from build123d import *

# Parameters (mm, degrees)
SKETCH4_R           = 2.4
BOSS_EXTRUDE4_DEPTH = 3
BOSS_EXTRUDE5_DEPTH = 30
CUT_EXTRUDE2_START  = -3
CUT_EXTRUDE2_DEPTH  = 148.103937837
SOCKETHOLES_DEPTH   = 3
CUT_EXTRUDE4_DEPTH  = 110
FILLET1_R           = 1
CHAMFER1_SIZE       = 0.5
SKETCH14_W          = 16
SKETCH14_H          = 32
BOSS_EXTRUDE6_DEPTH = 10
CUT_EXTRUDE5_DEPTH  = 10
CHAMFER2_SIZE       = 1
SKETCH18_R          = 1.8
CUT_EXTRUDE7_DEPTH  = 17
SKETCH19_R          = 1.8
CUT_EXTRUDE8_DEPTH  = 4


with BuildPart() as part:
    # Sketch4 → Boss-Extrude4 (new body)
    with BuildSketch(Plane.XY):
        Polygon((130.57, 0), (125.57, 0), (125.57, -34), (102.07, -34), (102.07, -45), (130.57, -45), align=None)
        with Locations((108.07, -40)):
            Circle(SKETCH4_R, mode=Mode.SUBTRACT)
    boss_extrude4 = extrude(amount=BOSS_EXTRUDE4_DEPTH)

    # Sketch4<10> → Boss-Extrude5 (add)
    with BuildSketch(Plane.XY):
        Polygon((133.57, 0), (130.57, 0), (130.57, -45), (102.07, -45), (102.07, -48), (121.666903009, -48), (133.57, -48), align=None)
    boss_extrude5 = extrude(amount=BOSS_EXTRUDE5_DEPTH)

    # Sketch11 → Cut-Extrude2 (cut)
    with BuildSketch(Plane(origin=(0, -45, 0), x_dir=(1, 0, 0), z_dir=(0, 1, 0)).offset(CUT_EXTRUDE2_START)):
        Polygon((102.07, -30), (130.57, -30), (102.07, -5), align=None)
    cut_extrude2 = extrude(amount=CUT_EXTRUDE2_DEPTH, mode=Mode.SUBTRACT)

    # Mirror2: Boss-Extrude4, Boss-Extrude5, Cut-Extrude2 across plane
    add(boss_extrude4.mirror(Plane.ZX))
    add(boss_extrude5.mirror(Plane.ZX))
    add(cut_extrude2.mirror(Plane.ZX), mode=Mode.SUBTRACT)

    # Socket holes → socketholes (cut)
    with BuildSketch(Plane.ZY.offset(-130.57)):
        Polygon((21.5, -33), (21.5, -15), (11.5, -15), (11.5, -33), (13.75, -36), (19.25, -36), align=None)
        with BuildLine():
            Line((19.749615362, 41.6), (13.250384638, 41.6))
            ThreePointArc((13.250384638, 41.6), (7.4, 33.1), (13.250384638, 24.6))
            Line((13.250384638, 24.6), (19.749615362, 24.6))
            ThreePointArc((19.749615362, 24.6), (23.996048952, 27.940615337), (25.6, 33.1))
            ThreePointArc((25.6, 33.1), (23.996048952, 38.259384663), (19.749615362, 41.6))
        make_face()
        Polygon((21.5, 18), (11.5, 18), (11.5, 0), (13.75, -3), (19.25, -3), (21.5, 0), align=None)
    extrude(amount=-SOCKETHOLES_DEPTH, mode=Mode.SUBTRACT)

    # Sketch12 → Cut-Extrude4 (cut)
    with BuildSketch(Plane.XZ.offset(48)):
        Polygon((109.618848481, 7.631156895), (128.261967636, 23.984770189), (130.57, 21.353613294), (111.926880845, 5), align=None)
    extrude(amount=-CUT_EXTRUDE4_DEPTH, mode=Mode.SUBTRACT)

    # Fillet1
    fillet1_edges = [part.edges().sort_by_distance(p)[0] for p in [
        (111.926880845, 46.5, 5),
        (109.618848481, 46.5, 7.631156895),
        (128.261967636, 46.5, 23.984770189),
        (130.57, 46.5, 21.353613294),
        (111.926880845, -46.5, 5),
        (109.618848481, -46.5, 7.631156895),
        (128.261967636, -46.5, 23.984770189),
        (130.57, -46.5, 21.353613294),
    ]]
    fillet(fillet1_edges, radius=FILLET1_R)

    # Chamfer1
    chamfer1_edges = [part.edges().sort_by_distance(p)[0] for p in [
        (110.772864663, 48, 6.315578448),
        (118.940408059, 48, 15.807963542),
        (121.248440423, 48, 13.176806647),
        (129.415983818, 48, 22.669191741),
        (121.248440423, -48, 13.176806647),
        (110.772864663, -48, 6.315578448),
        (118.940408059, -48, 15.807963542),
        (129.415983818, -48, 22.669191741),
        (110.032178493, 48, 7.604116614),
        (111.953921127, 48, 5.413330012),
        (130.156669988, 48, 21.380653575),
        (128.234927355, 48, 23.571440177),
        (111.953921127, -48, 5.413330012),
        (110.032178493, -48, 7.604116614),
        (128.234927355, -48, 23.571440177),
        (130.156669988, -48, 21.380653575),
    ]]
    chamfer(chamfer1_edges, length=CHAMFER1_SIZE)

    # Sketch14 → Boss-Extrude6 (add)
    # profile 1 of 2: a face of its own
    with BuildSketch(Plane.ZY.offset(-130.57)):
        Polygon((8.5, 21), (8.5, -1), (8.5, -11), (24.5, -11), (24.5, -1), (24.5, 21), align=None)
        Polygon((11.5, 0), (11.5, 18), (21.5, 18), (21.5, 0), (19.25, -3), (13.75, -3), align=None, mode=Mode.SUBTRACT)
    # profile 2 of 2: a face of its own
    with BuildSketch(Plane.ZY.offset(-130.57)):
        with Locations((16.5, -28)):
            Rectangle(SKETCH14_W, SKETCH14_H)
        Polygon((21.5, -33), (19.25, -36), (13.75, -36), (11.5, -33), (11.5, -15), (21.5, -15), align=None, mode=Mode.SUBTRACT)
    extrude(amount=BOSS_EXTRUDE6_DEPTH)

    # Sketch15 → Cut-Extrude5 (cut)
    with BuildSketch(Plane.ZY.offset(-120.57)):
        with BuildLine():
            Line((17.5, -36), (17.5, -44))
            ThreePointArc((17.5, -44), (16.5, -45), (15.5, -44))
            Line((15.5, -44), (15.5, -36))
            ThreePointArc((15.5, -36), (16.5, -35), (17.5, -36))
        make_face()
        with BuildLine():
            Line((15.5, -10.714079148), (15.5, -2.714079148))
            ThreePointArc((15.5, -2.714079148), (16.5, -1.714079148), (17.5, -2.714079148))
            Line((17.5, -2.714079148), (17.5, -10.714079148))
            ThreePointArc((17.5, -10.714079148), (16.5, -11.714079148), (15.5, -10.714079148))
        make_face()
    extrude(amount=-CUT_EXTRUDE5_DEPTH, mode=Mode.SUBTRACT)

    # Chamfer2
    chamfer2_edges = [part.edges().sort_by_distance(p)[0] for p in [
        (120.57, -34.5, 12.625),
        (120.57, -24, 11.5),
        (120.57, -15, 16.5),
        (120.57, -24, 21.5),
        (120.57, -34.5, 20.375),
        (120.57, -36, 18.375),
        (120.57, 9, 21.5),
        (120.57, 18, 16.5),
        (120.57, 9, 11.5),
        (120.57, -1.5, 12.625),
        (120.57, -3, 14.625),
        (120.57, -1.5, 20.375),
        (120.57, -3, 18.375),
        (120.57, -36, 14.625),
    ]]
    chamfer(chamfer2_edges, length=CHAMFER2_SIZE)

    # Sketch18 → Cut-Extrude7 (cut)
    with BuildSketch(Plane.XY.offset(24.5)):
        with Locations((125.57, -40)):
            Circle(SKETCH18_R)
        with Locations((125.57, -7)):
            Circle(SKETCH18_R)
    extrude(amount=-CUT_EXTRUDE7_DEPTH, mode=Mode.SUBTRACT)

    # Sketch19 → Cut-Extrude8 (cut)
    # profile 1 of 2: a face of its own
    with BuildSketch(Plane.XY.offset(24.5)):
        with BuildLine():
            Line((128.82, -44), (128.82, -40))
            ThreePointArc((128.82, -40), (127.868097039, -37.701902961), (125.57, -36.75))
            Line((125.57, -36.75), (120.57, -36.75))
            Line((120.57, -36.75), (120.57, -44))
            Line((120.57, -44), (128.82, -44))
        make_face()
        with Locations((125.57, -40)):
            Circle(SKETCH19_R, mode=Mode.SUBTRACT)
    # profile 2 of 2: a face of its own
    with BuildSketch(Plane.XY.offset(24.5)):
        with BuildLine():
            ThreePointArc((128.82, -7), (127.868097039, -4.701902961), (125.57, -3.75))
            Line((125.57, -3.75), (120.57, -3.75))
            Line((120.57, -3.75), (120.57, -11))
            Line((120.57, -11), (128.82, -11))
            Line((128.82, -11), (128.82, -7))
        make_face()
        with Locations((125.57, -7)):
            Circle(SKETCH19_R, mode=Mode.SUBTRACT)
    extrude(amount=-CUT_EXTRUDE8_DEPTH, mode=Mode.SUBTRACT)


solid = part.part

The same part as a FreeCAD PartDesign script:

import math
import FreeCAD as App
import Part
import Sketcher
Q = App.Units.Quantity


def edges_at(feature, points):
    """Names of the edges that pass closest to the given points."""
    edges = feature.Shape.Edges
    near = lambda p: min(range(len(edges)), key=lambda i: edges[i].distToShape(Part.Vertex(*p))[0])
    return sorted({f"Edge{near(p) + 1}" for p in points})


def add_polygon(sketch, points):
    """Adds a closed chain of lines whose ends are joined by coincident constraints."""
    first, n = sketch.GeometryCount, len(points)
    for a, b in zip(points, points[1:] + points[:1]):
        sketch.addGeometry(Part.LineSegment(App.Vector(*a, 0), App.Vector(*b, 0)), False)
    for i in range(n):
        sketch.addConstraint(Sketcher.Constraint("Coincident", first + i, 2, first + (i + 1) % n, 1))

doc = App.newDocument("Part")
body = doc.addObject("PartDesign::Body", "Body")

sketch1 = body.newObject("Sketcher::SketchObject", "Sketch")
sketch1.AttachmentSupport = (doc.getObject("XY_Plane"), [""])
sketch1.MapMode = "FlatFace"
add_polygon(sketch1, [(130.6, 0), (125.6, 0), (125.6, -34), (102.1, -34), (102.1, -45), (130.6, -45)])
sketch1.addGeometry(Part.Circle(App.Vector(108.1, -40, 0), App.Vector(0, 0, 1), 2.4), False)
sketch1.addConstraint([
    Sketcher.Constraint("Horizontal", 0),
    Sketcher.Constraint("Vertical", 1),
    Sketcher.Constraint("Horizontal", 2),
    Sketcher.Constraint("Vertical", 3),
    Sketcher.Constraint("Horizontal", 4),
    Sketcher.Constraint("Vertical", 5),
    Sketcher.Constraint("PointOnObject", 0, 2, -1),
    Sketcher.Constraint("Diameter", 6, Q("4.8 mm")),
    Sketcher.Constraint("DistanceX", 0, 2, 0, 1, Q("5 mm")),
    Sketcher.Constraint("DistanceY", 1, 2, 1, 1, Q("34 mm")),
    Sketcher.Constraint("DistanceY", 3, 2, 3, 1, Q("11 mm")),
    Sketcher.Constraint("DistanceX", 2, 2, 2, 1, Q("23.5 mm")),
    Sketcher.Constraint("DistanceY", 6, 3, -1, 1, Q("40 mm")),
    Sketcher.Constraint("DistanceX", 2, 2, 6, 3, Q("6 mm")),
    Sketcher.Constraint("DistanceX", -1, 1, 6, 3, Q("108.07 mm")),
])
pad1 = body.newObject("PartDesign::Pad", "Pad")
pad1.Profile = sketch1
pad1.Length = 3

sketch2 = body.newObject("Sketcher::SketchObject", "Sketch001")
sketch2.AttachmentSupport = (doc.getObject("XY_Plane"), [""])
sketch2.MapMode = "FlatFace"
add_polygon(sketch2, [(133.6, 0), (130.6, 0), (130.6, -45), (102.1, -45), (102.1, -48), (133.6, -48)])
sketch2.addConstraint([
    Sketcher.Constraint("Horizontal", 0),
    Sketcher.Constraint("Vertical", 1),
    Sketcher.Constraint("Horizontal", 2),
    Sketcher.Constraint("Vertical", 3),
    Sketcher.Constraint("Horizontal", 4),
    Sketcher.Constraint("Vertical", 5),
    Sketcher.Constraint("PointOnObject", 0, 2, -1),
    Sketcher.Constraint("Equal", 0, 3),
    Sketcher.Constraint("DistanceX", 0, 2, 0, 1, Q("3 mm")),
    Sketcher.Constraint("DistanceY", 1, 2, 1, 1, Q("45 mm")),
    Sketcher.Constraint("DistanceX", 2, 2, 2, 1, Q("28.5 mm")),
    Sketcher.Constraint("DistanceX", -1, 1, 0, 2, Q("130.57 mm")),
])
pad2 = body.newObject("PartDesign::Pad", "Pad001")
pad2.Profile = sketch2
pad2.Length = 30

sketch3 = body.newObject("Sketcher::SketchObject", "Sketch002")
sketch3.AttachmentSupport = (doc.getObject("XZ_Plane"), [""])
sketch3.MapMode = "FlatFace"
sketch3.AttachmentOffset = App.Placement(App.Vector(0, 0, 48), App.Rotation())
add_polygon(sketch3, [(102, 30), (131, 30), (102, 5)])
sketch3.addConstraint([
    Sketcher.Constraint("Horizontal", 0),
    Sketcher.Constraint("Vertical", 2),
    Sketcher.Constraint("DistanceY", 2, 1, 2, 2, Q("25 mm")),
    Sketcher.Constraint("DistanceX", 0, 1, 0, 2, Q("28.5 mm")),
    Sketcher.Constraint("DistanceY", -1, 1, 0, 2, Q("30 mm")),
    Sketcher.Constraint("DistanceX", -1, 1, 0, 2, Q("130.57 mm")),
])
pocket1 = body.newObject("PartDesign::Pocket", "Pocket")
pocket1.Profile = sketch3
pocket1.Length = 148.103938
doc.recompute()

mirrored = body.newObject("PartDesign::Mirrored", "Mirrored")
mirrored.Originals = [pad1, pad2, pocket1]
mirrored.MirrorPlane = (doc.getObject("XZ_Plane"), [""])
body.Tip = mirrored

sketch4 = body.newObject("Sketcher::SketchObject", "Sketch003")
sketch4.AttachmentSupport = (doc.getObject("YZ_Plane"), [""])
sketch4.MapMode = "FlatFace"
sketch4.AttachmentOffset = App.Placement(App.Vector(0, 0, 130.57), App.Rotation())
add_polygon(sketch4, [(-33, 21.5), (-15, 21.5), (-15, 11.5), (-33, 11.5), (-36, 13.8), (-36, 19.2)])
sketch4.addGeometry(Part.LineSegment(App.Vector(41.6, 19.7, 0), App.Vector(41.6, 13.3, 0)), False)
sketch4.addGeometry(Part.ArcOfCircle(Part.Circle(App.Vector(33.1, 16.5, 0), App.Vector(0, 0, 1), 9.1), math.radians(-159), math.radians(-21)), False)
sketch4.addGeometry(Part.LineSegment(App.Vector(24.6, 13.3, 0), App.Vector(24.6, 19.7, 0)), False)
sketch4.addGeometry(Part.ArcOfCircle(Part.Circle(App.Vector(33.1, 16.5, 0), App.Vector(0, 0, 1), 9.1), math.radians(90), math.radians(159)), False)
sketch4.addGeometry(Part.ArcOfCircle(Part.Circle(App.Vector(33.1, 16.5, 0), App.Vector(0, 0, 1), 9.1), math.radians(21), math.radians(90)), False)
add_polygon(sketch4, [(18, 21.5), (18, 11.5), (0, 11.5), (-3, 13.8), (-3, 19.2), (0, 21.5)])
sketch4.addConstraint([
    Sketcher.Constraint("Coincident", 6, 2, 7, 2),
    Sketcher.Constraint("Coincident", 7, 1, 8, 1),
    Sketcher.Constraint("Coincident", 8, 2, 9, 2),
    Sketcher.Constraint("Tangent", 9, 1, 10, 2),
    Sketcher.Constraint("Coincident", 10, 1, 6, 1),
    Sketcher.Constraint("Horizontal", 0),
    Sketcher.Constraint("Vertical", 1),
    Sketcher.Constraint("Horizontal", 2),
    Sketcher.Constraint("Vertical", 4),
    Sketcher.Constraint("Vertical", 6),
    Sketcher.Constraint("Vertical", 8),
    Sketcher.Constraint("Vertical", 11),
    Sketcher.Constraint("Horizontal", 12),
    Sketcher.Constraint("Vertical", 14),
    Sketcher.Constraint("Horizontal", 16),
    Sketcher.Constraint("Coincident", 9, 3, 7, 3),
    Sketcher.Constraint("Equal", 7, 9),
    Sketcher.Constraint("Equal", 9, 10),
    Sketcher.Constraint("PointOnObject", 12, 2, -2),
    Sketcher.Constraint("PointOnObject", 15, 2, -2),
    Sketcher.Constraint("Parallel", 3, 13),
    Sketcher.Constraint("Parallel", 5, 15),
    Sketcher.Constraint("Horizontal", 6, 2, 7, 1),
    Sketcher.Constraint("Horizontal", 2, 2, 11, 2),
    Sketcher.Constraint("Horizontal", 3, 2, 13, 2),
    Sketcher.Constraint("Horizontal", 4, 2, 14, 2),
    Sketcher.Constraint("Horizontal", 5, 2, 15, 2),
    Sketcher.Constraint("Vertical", 10, 3, 9, 1),
    Sketcher.Constraint("Equal", 2, 12),
    Sketcher.Constraint("Equal", 3, 5),
    Sketcher.Constraint("Radius", 7, Q("9.1 mm")),
    Sketcher.Constraint("DistanceX", 0, 1, 0, 2, Q("18 mm")),
    Sketcher.Constraint("DistanceY", 1, 2, 1, 1, Q("10 mm")),
    Sketcher.Constraint("DistanceY", 4, 1, 4, 2, Q("5.5 mm")),
    Sketcher.Constraint("DistanceX", 0, 2, -1, 1, Q("15 mm")),
    Sketcher.Constraint("DistanceX", 3, 2, -1, 1, Q("36 mm")),
    Sketcher.Constraint("DistanceY", 10, 3, 0, 2, Q("5 mm")),
    Sketcher.Constraint("DistanceX", 7, 1, 6, 2, Q("17 mm")),
    Sketcher.Constraint("DistanceX", -1, 1, 7, 3, Q("33.1 mm")),
    Sketcher.Constraint("DistanceY", -1, 1, 7, 3, Q("16.5 mm")),
])
pocket2 = body.newObject("PartDesign::Pocket", "Pocket001")
pocket2.Profile = sketch4
pocket2.Length = 3
pocket2.Reversed = True

sketch5 = body.newObject("Sketcher::SketchObject", "Sketch004")
sketch5.AttachmentSupport = (doc.getObject("XZ_Plane"), [""])
sketch5.MapMode = "FlatFace"
sketch5.AttachmentOffset = App.Placement(App.Vector(0, 0, 48), App.Rotation())
add_polygon(sketch5, [(128.3, 24), (109.6, 7.6), (111.9, 5), (130.6, 21.4)])
sketch5.addConstraint([
    Sketcher.Constraint("Perpendicular", 0, 1),
    Sketcher.Constraint("Perpendicular", 1, 2),
    Sketcher.Constraint("Perpendicular", 2, 3),
    Sketcher.Constraint("DistanceY", -1, 1, 1, 2, Q("5 mm")),
    Sketcher.Constraint("Distance", 1, Q("3.5 mm")),
    Sketcher.Constraint("DistanceX", -1, 1, 2, 2, Q("130.57 mm")),
    Sketcher.Constraint("DistanceX", -1, 1, 0, 2, Q("109.618848 mm")),
    Sketcher.Constraint("DistanceX", -1, 1, 1, 2, Q("111.926881 mm")),
])
pocket3 = body.newObject("PartDesign::Pocket", "Pocket002")
pocket3.Profile = sketch5
pocket3.Length = 110
doc.recompute()

fillet = body.newObject("PartDesign::Fillet", "Fillet")
fillet.Base = (pocket3, edges_at(pocket3, [
    (111.927, 46.5, 5),
    (109.619, 46.5, 7.631),
    (128.262, 46.5, 23.985),
    (130.57, 46.5, 21.354),
    (111.927, -46.5, 5),
    (109.619, -46.5, 7.631),
    (128.262, -46.5, 23.985),
    (130.57, -46.5, 21.354),
]))
fillet.Radius = 1
doc.recompute()

chamfer = body.newObject("PartDesign::Chamfer", "Chamfer")
chamfer.Base = (fillet, edges_at(fillet, [
    (110.773, 48, 6.316),
    (118.94, 48, 15.808),
    (121.248, 48, 13.177),
    (129.416, 48, 22.669),
    (121.248, -48, 13.177),
    (110.773, -48, 6.316),
    (118.94, -48, 15.808),
    (129.416, -48, 22.669),
    (110.032, 48, 7.604),
    (111.954, 48, 5.413),
    (130.157, 48, 21.381),
    (128.235, 48, 23.571),
    (111.954, -48, 5.413),
    (110.032, -48, 7.604),
    (128.235, -48, 23.571),
    (130.157, -48, 21.381),
]))
chamfer.Size = 0.5

sketch6 = body.newObject("Sketcher::SketchObject", "Sketch005")
sketch6.AttachmentSupport = (doc.getObject("YZ_Plane"), [""])
sketch6.MapMode = "FlatFace"
sketch6.AttachmentOffset = App.Placement(App.Vector(0, 0, 130.57), App.Rotation())
add_polygon(sketch6, [(21, 8.5), (-11, 8.5), (-11, 24.5), (21, 24.5)])
add_polygon(sketch6, [(-3, 13.8), (0, 11.5), (18, 11.5), (18, 21.5), (0, 21.5), (-3, 19.2)])
add_polygon(sketch6, [(-12, 8.5), (-44, 8.5), (-44, 24.5), (-12, 24.5)])
add_polygon(sketch6, [(-15, 21.5), (-33, 21.5), (-36, 19.2), (-36, 13.8), (-33, 11.5), (-15, 11.5)])
sketch6.addConstraint([
    Sketcher.Constraint("Horizontal", 0),
    Sketcher.Constraint("Vertical", 1),
    Sketcher.Constraint("Horizontal", 2),
    Sketcher.Constraint("Vertical", 3),
    Sketcher.Constraint("Horizontal", 5),
    Sketcher.Constraint("Vertical", 6),
    Sketcher.Constraint("Horizontal", 7),
    Sketcher.Constraint("Vertical", 9),
    Sketcher.Constraint("Horizontal", 10),
    Sketcher.Constraint("Vertical", 11),
    Sketcher.Constraint("Horizontal", 12),
    Sketcher.Constraint("Vertical", 13),
    Sketcher.Constraint("Horizontal", 14),
    Sketcher.Constraint("Vertical", 16),
    Sketcher.Constraint("Horizontal", 18),
    Sketcher.Constraint("Vertical", 19),
    Sketcher.Constraint("PointOnObject", 4, 2, -2),
    Sketcher.Constraint("PointOnObject", 7, 2, -2),
    Sketcher.Constraint("Parallel", 8, 15),
    Sketcher.Constraint("Parallel", 4, 17),
    Sketcher.Constraint("Horizontal", 3, 2, 10, 2),
    Sketcher.Constraint("Horizontal", 2, 2, 11, 2),
    Sketcher.Constraint("Horizontal", 7, 2, 14, 2),
    Sketcher.Constraint("Horizontal", 8, 2, 15, 2),
    Sketcher.Constraint("Horizontal", 9, 2, 16, 2),
    Sketcher.Constraint("Horizontal", 5, 2, 17, 2),
    Sketcher.Constraint("Equal", 2, 10),
    Sketcher.Constraint("Equal", 7, 14),
    Sketcher.Constraint("Equal", 4, 8),
    Sketcher.Constraint("DistanceX", 0, 2, 0, 1, Q("32 mm")),
    Sketcher.Constraint("DistanceX", 5, 1, 5, 2, Q("18 mm")),
    Sketcher.Constraint("DistanceY", 1, 1, 1, 2, Q("16 mm")),
    Sketcher.Constraint("DistanceY", 6, 1, 6, 2, Q("10 mm")),
    Sketcher.Constraint("DistanceY", 9, 2, 9, 1, Q("5.5 mm")),
    Sketcher.Constraint("DistanceX", 0, 2, -1, 1, Q("11 mm")),
    Sketcher.Constraint("DistanceX", 8, 2, -1, 1, Q("3 mm")),
    Sketcher.Constraint("DistanceX", 10, 2, -1, 1, Q("44 mm")),
    Sketcher.Constraint("DistanceX", 14, 2, -1, 1, Q("33 mm")),
    Sketcher.Constraint("DistanceY", 0, 2, 4, 2, Q("3 mm")),
    Sketcher.Constraint("DistanceY", -1, 1, 0, 2, Q("8.5 mm")),
])
pad3 = body.newObject("PartDesign::Pad", "Pad002")
pad3.Profile = sketch6
pad3.Length = 10
pad3.Reversed = True

sketch7 = body.newObject("Sketcher::SketchObject", "Sketch006")
sketch7.AttachmentSupport = (doc.getObject("YZ_Plane"), [""])
sketch7.MapMode = "FlatFace"
sketch7.AttachmentOffset = App.Placement(App.Vector(0, 0, 120.57), App.Rotation())
sketch7.addGeometry([
    Part.LineSegment(App.Vector(-44, 17.5, 0), App.Vector(-36, 17.5, 0)),
    Part.ArcOfCircle(Part.Circle(App.Vector(-36, 16.5, 0), App.Vector(0, 0, 1), 1), math.radians(-90), math.radians(90)),
    Part.LineSegment(App.Vector(-36, 15.5, 0), App.Vector(-44, 15.5, 0)),
    Part.ArcOfCircle(Part.Circle(App.Vector(-44, 16.5, 0), App.Vector(0, 0, 1), 1), math.radians(90), math.radians(270)),
    Part.LineSegment(App.Vector(-2.7, 15.5, 0), App.Vector(-10.7, 15.5, 0)),
    Part.ArcOfCircle(Part.Circle(App.Vector(-10.7, 16.5, 0), App.Vector(0, 0, 1), 1), math.radians(90), math.radians(270)),
    Part.LineSegment(App.Vector(-10.7, 17.5, 0), App.Vector(-2.7, 17.5, 0)),
    Part.ArcOfCircle(Part.Circle(App.Vector(-2.7, 16.5, 0), App.Vector(0, 0, 1), 1), math.radians(-90), math.radians(90)),
], False)
sketch7.addConstraint([
    Sketcher.Constraint("Tangent", 0, 2, 1, 2),
    Sketcher.Constraint("Tangent", 1, 1, 2, 1),
    Sketcher.Constraint("Tangent", 2, 2, 3, 2),
    Sketcher.Constraint("Tangent", 3, 1, 0, 1),
    Sketcher.Constraint("Tangent", 4, 2, 5, 2),
    Sketcher.Constraint("Tangent", 5, 1, 6, 1),
    Sketcher.Constraint("Tangent", 6, 2, 7, 2),
    Sketcher.Constraint("Tangent", 7, 1, 4, 1),
    Sketcher.Constraint("Horizontal", 0),
    Sketcher.Constraint("Horizontal", 2),
    Sketcher.Constraint("Horizontal", 4),
    Sketcher.Constraint("Horizontal", 6),
    Sketcher.Constraint("Equal", 3, 5),
    Sketcher.Constraint("Horizontal", 3, 3, 5, 3),
    Sketcher.Constraint("Equal", 2, 4),
    Sketcher.Constraint("Radius", 1, Q("1 mm")),
    Sketcher.Constraint("DistanceX", 0, 1, 0, 2, Q("8 mm")),
    Sketcher.Constraint("DistanceX", 1, 3, -1, 1, Q("36 mm")),
    Sketcher.Constraint("DistanceY", -1, 1, 1, 3, Q("16.5 mm")),
    Sketcher.Constraint("DistanceX", 5, 3, -1, 1, Q("10.714079 mm")),
])
pocket4 = body.newObject("PartDesign::Pocket", "Pocket003")
pocket4.Profile = sketch7
pocket4.Length = 10
pocket4.Reversed = True
doc.recompute()

chamfer2 = body.newObject("PartDesign::Chamfer", "Chamfer001")
chamfer2.Base = (pocket4, edges_at(pocket4, [
    (120.57, -34.5, 12.625),
    (120.57, -24, 11.5),
    (120.57, -15, 16.5),
    (120.57, -24, 21.5),
    (120.57, -34.5, 20.375),
    (120.57, -36, 18.375),
    (120.57, 9, 21.5),
    (120.57, 18, 16.5),
    (120.57, 9, 11.5),
    (120.57, -1.5, 12.625),
    (120.57, -3, 14.625),
    (120.57, -1.5, 20.375),
    (120.57, -3, 18.375),
    (120.57, -36, 14.625),
]))
chamfer2.Size = 1

sketch8 = body.newObject("Sketcher::SketchObject", "Sketch007")
sketch8.AttachmentSupport = (doc.getObject("XY_Plane"), [""])
sketch8.MapMode = "FlatFace"
sketch8.AttachmentOffset = App.Placement(App.Vector(0, 0, 24.5), App.Rotation())
sketch8.addGeometry([
    Part.Circle(App.Vector(125.6, -40, 0), App.Vector(0, 0, 1), 1.8),
    Part.Circle(App.Vector(125.6, -7, 0), App.Vector(0, 0, 1), 1.8),
], False)
sketch8.addConstraint([
    Sketcher.Constraint("Equal", 0, 1),
    Sketcher.Constraint("Vertical", 0, 3, 1, 3),
    Sketcher.Constraint("Diameter", 0, Q("3.6 mm")),
    Sketcher.Constraint("DistanceY", 0, 3, -1, 1, Q("40 mm")),
    Sketcher.Constraint("DistanceY", 1, 3, -1, 1, Q("7 mm")),
    Sketcher.Constraint("DistanceX", -1, 1, 0, 3, Q("125.57 mm")),
])
pocket5 = body.newObject("PartDesign::Pocket", "Pocket004")
pocket5.Profile = sketch8
pocket5.Length = 17

sketch9 = body.newObject("Sketcher::SketchObject", "Sketch008")
sketch9.AttachmentSupport = (doc.getObject("XY_Plane"), [""])
sketch9.MapMode = "FlatFace"
sketch9.AttachmentOffset = App.Placement(App.Vector(0, 0, 24.5), App.Rotation())
sketch9.addGeometry([
    Part.LineSegment(App.Vector(128.8, -44, 0), App.Vector(128.8, -40, 0)),
    Part.ArcOfCircle(Part.Circle(App.Vector(125.6, -40, 0), App.Vector(0, 0, 1), 3.2), math.radians(0), math.radians(90)),
    Part.LineSegment(App.Vector(125.6, -36.8, 0), App.Vector(120.6, -36.8, 0)),
    Part.LineSegment(App.Vector(120.6, -36.8, 0), App.Vector(120.6, -44, 0)),
    Part.LineSegment(App.Vector(120.6, -44, 0), App.Vector(128.8, -44, 0)),
    Part.Circle(App.Vector(125.6, -40, 0), App.Vector(0, 0, 1), 1.8),
    Part.ArcOfCircle(Part.Circle(App.Vector(125.6, -7, 0), App.Vector(0, 0, 1), 3.2), math.radians(0), math.radians(90)),
    Part.LineSegment(App.Vector(125.6, -3.8, 0), App.Vector(120.6, -3.8, 0)),
    Part.LineSegment(App.Vector(120.6, -3.8, 0), App.Vector(120.6, -11, 0)),
    Part.LineSegment(App.Vector(120.6, -11, 0), App.Vector(128.8, -11, 0)),
    Part.LineSegment(App.Vector(128.8, -11, 0), App.Vector(128.8, -7, 0)),
    Part.Circle(App.Vector(125.6, -7, 0), App.Vector(0, 0, 1), 1.8),
], False)
sketch9.addConstraint([
    Sketcher.Constraint("Tangent", 0, 2, 1, 1),
    Sketcher.Constraint("Tangent", 1, 2, 2, 1),
    Sketcher.Constraint("Coincident", 2, 2, 3, 1),
    Sketcher.Constraint("Coincident", 3, 2, 4, 1),
    Sketcher.Constraint("Coincident", 4, 2, 0, 1),
    Sketcher.Constraint("Tangent", 6, 2, 7, 1),
    Sketcher.Constraint("Coincident", 7, 2, 8, 1),
    Sketcher.Constraint("Coincident", 8, 2, 9, 1),
    Sketcher.Constraint("Coincident", 9, 2, 10, 1),
    Sketcher.Constraint("Tangent", 10, 2, 6, 1),
    Sketcher.Constraint("Vertical", 0),
    Sketcher.Constraint("Horizontal", 2),
    Sketcher.Constraint("Vertical", 3),
    Sketcher.Constraint("Horizontal", 4),
    Sketcher.Constraint("Horizontal", 7),
    Sketcher.Constraint("Vertical", 8),
    Sketcher.Constraint("Horizontal", 9),
    Sketcher.Constraint("Vertical", 10),
    Sketcher.Constraint("Coincident", 5, 3, 1, 3),
    Sketcher.Constraint("Coincident", 11, 3, 6, 3),
    Sketcher.Constraint("Equal", 1, 6),
    Sketcher.Constraint("Equal", 5, 11),
    Sketcher.Constraint("Vertical", 5, 3, 6, 3),
    Sketcher.Constraint("Vertical", 3, 2, 7, 2),
    Sketcher.Constraint("Equal", 3, 8),
    Sketcher.Constraint("Diameter", 5, Q("3.6 mm")),
    Sketcher.Constraint("DistanceX", 2, 2, 2, 1, Q("5 mm")),
    Sketcher.Constraint("DistanceY", 0, 1, 0, 2, Q("4 mm")),
    Sketcher.Constraint("Radius", 1, Q("3.25 mm")),
    Sketcher.Constraint("DistanceY", 1, 3, -1, 1, Q("40 mm")),
    Sketcher.Constraint("DistanceY", 6, 3, -1, 1, Q("7 mm")),
    Sketcher.Constraint("DistanceX", -1, 1, 1, 3, Q("125.57 mm")),
])
pocket6 = body.newObject("PartDesign::Pocket", "Pocket005")
pocket6.Profile = sketch9
pocket6.Length = 4

doc.recompute()
